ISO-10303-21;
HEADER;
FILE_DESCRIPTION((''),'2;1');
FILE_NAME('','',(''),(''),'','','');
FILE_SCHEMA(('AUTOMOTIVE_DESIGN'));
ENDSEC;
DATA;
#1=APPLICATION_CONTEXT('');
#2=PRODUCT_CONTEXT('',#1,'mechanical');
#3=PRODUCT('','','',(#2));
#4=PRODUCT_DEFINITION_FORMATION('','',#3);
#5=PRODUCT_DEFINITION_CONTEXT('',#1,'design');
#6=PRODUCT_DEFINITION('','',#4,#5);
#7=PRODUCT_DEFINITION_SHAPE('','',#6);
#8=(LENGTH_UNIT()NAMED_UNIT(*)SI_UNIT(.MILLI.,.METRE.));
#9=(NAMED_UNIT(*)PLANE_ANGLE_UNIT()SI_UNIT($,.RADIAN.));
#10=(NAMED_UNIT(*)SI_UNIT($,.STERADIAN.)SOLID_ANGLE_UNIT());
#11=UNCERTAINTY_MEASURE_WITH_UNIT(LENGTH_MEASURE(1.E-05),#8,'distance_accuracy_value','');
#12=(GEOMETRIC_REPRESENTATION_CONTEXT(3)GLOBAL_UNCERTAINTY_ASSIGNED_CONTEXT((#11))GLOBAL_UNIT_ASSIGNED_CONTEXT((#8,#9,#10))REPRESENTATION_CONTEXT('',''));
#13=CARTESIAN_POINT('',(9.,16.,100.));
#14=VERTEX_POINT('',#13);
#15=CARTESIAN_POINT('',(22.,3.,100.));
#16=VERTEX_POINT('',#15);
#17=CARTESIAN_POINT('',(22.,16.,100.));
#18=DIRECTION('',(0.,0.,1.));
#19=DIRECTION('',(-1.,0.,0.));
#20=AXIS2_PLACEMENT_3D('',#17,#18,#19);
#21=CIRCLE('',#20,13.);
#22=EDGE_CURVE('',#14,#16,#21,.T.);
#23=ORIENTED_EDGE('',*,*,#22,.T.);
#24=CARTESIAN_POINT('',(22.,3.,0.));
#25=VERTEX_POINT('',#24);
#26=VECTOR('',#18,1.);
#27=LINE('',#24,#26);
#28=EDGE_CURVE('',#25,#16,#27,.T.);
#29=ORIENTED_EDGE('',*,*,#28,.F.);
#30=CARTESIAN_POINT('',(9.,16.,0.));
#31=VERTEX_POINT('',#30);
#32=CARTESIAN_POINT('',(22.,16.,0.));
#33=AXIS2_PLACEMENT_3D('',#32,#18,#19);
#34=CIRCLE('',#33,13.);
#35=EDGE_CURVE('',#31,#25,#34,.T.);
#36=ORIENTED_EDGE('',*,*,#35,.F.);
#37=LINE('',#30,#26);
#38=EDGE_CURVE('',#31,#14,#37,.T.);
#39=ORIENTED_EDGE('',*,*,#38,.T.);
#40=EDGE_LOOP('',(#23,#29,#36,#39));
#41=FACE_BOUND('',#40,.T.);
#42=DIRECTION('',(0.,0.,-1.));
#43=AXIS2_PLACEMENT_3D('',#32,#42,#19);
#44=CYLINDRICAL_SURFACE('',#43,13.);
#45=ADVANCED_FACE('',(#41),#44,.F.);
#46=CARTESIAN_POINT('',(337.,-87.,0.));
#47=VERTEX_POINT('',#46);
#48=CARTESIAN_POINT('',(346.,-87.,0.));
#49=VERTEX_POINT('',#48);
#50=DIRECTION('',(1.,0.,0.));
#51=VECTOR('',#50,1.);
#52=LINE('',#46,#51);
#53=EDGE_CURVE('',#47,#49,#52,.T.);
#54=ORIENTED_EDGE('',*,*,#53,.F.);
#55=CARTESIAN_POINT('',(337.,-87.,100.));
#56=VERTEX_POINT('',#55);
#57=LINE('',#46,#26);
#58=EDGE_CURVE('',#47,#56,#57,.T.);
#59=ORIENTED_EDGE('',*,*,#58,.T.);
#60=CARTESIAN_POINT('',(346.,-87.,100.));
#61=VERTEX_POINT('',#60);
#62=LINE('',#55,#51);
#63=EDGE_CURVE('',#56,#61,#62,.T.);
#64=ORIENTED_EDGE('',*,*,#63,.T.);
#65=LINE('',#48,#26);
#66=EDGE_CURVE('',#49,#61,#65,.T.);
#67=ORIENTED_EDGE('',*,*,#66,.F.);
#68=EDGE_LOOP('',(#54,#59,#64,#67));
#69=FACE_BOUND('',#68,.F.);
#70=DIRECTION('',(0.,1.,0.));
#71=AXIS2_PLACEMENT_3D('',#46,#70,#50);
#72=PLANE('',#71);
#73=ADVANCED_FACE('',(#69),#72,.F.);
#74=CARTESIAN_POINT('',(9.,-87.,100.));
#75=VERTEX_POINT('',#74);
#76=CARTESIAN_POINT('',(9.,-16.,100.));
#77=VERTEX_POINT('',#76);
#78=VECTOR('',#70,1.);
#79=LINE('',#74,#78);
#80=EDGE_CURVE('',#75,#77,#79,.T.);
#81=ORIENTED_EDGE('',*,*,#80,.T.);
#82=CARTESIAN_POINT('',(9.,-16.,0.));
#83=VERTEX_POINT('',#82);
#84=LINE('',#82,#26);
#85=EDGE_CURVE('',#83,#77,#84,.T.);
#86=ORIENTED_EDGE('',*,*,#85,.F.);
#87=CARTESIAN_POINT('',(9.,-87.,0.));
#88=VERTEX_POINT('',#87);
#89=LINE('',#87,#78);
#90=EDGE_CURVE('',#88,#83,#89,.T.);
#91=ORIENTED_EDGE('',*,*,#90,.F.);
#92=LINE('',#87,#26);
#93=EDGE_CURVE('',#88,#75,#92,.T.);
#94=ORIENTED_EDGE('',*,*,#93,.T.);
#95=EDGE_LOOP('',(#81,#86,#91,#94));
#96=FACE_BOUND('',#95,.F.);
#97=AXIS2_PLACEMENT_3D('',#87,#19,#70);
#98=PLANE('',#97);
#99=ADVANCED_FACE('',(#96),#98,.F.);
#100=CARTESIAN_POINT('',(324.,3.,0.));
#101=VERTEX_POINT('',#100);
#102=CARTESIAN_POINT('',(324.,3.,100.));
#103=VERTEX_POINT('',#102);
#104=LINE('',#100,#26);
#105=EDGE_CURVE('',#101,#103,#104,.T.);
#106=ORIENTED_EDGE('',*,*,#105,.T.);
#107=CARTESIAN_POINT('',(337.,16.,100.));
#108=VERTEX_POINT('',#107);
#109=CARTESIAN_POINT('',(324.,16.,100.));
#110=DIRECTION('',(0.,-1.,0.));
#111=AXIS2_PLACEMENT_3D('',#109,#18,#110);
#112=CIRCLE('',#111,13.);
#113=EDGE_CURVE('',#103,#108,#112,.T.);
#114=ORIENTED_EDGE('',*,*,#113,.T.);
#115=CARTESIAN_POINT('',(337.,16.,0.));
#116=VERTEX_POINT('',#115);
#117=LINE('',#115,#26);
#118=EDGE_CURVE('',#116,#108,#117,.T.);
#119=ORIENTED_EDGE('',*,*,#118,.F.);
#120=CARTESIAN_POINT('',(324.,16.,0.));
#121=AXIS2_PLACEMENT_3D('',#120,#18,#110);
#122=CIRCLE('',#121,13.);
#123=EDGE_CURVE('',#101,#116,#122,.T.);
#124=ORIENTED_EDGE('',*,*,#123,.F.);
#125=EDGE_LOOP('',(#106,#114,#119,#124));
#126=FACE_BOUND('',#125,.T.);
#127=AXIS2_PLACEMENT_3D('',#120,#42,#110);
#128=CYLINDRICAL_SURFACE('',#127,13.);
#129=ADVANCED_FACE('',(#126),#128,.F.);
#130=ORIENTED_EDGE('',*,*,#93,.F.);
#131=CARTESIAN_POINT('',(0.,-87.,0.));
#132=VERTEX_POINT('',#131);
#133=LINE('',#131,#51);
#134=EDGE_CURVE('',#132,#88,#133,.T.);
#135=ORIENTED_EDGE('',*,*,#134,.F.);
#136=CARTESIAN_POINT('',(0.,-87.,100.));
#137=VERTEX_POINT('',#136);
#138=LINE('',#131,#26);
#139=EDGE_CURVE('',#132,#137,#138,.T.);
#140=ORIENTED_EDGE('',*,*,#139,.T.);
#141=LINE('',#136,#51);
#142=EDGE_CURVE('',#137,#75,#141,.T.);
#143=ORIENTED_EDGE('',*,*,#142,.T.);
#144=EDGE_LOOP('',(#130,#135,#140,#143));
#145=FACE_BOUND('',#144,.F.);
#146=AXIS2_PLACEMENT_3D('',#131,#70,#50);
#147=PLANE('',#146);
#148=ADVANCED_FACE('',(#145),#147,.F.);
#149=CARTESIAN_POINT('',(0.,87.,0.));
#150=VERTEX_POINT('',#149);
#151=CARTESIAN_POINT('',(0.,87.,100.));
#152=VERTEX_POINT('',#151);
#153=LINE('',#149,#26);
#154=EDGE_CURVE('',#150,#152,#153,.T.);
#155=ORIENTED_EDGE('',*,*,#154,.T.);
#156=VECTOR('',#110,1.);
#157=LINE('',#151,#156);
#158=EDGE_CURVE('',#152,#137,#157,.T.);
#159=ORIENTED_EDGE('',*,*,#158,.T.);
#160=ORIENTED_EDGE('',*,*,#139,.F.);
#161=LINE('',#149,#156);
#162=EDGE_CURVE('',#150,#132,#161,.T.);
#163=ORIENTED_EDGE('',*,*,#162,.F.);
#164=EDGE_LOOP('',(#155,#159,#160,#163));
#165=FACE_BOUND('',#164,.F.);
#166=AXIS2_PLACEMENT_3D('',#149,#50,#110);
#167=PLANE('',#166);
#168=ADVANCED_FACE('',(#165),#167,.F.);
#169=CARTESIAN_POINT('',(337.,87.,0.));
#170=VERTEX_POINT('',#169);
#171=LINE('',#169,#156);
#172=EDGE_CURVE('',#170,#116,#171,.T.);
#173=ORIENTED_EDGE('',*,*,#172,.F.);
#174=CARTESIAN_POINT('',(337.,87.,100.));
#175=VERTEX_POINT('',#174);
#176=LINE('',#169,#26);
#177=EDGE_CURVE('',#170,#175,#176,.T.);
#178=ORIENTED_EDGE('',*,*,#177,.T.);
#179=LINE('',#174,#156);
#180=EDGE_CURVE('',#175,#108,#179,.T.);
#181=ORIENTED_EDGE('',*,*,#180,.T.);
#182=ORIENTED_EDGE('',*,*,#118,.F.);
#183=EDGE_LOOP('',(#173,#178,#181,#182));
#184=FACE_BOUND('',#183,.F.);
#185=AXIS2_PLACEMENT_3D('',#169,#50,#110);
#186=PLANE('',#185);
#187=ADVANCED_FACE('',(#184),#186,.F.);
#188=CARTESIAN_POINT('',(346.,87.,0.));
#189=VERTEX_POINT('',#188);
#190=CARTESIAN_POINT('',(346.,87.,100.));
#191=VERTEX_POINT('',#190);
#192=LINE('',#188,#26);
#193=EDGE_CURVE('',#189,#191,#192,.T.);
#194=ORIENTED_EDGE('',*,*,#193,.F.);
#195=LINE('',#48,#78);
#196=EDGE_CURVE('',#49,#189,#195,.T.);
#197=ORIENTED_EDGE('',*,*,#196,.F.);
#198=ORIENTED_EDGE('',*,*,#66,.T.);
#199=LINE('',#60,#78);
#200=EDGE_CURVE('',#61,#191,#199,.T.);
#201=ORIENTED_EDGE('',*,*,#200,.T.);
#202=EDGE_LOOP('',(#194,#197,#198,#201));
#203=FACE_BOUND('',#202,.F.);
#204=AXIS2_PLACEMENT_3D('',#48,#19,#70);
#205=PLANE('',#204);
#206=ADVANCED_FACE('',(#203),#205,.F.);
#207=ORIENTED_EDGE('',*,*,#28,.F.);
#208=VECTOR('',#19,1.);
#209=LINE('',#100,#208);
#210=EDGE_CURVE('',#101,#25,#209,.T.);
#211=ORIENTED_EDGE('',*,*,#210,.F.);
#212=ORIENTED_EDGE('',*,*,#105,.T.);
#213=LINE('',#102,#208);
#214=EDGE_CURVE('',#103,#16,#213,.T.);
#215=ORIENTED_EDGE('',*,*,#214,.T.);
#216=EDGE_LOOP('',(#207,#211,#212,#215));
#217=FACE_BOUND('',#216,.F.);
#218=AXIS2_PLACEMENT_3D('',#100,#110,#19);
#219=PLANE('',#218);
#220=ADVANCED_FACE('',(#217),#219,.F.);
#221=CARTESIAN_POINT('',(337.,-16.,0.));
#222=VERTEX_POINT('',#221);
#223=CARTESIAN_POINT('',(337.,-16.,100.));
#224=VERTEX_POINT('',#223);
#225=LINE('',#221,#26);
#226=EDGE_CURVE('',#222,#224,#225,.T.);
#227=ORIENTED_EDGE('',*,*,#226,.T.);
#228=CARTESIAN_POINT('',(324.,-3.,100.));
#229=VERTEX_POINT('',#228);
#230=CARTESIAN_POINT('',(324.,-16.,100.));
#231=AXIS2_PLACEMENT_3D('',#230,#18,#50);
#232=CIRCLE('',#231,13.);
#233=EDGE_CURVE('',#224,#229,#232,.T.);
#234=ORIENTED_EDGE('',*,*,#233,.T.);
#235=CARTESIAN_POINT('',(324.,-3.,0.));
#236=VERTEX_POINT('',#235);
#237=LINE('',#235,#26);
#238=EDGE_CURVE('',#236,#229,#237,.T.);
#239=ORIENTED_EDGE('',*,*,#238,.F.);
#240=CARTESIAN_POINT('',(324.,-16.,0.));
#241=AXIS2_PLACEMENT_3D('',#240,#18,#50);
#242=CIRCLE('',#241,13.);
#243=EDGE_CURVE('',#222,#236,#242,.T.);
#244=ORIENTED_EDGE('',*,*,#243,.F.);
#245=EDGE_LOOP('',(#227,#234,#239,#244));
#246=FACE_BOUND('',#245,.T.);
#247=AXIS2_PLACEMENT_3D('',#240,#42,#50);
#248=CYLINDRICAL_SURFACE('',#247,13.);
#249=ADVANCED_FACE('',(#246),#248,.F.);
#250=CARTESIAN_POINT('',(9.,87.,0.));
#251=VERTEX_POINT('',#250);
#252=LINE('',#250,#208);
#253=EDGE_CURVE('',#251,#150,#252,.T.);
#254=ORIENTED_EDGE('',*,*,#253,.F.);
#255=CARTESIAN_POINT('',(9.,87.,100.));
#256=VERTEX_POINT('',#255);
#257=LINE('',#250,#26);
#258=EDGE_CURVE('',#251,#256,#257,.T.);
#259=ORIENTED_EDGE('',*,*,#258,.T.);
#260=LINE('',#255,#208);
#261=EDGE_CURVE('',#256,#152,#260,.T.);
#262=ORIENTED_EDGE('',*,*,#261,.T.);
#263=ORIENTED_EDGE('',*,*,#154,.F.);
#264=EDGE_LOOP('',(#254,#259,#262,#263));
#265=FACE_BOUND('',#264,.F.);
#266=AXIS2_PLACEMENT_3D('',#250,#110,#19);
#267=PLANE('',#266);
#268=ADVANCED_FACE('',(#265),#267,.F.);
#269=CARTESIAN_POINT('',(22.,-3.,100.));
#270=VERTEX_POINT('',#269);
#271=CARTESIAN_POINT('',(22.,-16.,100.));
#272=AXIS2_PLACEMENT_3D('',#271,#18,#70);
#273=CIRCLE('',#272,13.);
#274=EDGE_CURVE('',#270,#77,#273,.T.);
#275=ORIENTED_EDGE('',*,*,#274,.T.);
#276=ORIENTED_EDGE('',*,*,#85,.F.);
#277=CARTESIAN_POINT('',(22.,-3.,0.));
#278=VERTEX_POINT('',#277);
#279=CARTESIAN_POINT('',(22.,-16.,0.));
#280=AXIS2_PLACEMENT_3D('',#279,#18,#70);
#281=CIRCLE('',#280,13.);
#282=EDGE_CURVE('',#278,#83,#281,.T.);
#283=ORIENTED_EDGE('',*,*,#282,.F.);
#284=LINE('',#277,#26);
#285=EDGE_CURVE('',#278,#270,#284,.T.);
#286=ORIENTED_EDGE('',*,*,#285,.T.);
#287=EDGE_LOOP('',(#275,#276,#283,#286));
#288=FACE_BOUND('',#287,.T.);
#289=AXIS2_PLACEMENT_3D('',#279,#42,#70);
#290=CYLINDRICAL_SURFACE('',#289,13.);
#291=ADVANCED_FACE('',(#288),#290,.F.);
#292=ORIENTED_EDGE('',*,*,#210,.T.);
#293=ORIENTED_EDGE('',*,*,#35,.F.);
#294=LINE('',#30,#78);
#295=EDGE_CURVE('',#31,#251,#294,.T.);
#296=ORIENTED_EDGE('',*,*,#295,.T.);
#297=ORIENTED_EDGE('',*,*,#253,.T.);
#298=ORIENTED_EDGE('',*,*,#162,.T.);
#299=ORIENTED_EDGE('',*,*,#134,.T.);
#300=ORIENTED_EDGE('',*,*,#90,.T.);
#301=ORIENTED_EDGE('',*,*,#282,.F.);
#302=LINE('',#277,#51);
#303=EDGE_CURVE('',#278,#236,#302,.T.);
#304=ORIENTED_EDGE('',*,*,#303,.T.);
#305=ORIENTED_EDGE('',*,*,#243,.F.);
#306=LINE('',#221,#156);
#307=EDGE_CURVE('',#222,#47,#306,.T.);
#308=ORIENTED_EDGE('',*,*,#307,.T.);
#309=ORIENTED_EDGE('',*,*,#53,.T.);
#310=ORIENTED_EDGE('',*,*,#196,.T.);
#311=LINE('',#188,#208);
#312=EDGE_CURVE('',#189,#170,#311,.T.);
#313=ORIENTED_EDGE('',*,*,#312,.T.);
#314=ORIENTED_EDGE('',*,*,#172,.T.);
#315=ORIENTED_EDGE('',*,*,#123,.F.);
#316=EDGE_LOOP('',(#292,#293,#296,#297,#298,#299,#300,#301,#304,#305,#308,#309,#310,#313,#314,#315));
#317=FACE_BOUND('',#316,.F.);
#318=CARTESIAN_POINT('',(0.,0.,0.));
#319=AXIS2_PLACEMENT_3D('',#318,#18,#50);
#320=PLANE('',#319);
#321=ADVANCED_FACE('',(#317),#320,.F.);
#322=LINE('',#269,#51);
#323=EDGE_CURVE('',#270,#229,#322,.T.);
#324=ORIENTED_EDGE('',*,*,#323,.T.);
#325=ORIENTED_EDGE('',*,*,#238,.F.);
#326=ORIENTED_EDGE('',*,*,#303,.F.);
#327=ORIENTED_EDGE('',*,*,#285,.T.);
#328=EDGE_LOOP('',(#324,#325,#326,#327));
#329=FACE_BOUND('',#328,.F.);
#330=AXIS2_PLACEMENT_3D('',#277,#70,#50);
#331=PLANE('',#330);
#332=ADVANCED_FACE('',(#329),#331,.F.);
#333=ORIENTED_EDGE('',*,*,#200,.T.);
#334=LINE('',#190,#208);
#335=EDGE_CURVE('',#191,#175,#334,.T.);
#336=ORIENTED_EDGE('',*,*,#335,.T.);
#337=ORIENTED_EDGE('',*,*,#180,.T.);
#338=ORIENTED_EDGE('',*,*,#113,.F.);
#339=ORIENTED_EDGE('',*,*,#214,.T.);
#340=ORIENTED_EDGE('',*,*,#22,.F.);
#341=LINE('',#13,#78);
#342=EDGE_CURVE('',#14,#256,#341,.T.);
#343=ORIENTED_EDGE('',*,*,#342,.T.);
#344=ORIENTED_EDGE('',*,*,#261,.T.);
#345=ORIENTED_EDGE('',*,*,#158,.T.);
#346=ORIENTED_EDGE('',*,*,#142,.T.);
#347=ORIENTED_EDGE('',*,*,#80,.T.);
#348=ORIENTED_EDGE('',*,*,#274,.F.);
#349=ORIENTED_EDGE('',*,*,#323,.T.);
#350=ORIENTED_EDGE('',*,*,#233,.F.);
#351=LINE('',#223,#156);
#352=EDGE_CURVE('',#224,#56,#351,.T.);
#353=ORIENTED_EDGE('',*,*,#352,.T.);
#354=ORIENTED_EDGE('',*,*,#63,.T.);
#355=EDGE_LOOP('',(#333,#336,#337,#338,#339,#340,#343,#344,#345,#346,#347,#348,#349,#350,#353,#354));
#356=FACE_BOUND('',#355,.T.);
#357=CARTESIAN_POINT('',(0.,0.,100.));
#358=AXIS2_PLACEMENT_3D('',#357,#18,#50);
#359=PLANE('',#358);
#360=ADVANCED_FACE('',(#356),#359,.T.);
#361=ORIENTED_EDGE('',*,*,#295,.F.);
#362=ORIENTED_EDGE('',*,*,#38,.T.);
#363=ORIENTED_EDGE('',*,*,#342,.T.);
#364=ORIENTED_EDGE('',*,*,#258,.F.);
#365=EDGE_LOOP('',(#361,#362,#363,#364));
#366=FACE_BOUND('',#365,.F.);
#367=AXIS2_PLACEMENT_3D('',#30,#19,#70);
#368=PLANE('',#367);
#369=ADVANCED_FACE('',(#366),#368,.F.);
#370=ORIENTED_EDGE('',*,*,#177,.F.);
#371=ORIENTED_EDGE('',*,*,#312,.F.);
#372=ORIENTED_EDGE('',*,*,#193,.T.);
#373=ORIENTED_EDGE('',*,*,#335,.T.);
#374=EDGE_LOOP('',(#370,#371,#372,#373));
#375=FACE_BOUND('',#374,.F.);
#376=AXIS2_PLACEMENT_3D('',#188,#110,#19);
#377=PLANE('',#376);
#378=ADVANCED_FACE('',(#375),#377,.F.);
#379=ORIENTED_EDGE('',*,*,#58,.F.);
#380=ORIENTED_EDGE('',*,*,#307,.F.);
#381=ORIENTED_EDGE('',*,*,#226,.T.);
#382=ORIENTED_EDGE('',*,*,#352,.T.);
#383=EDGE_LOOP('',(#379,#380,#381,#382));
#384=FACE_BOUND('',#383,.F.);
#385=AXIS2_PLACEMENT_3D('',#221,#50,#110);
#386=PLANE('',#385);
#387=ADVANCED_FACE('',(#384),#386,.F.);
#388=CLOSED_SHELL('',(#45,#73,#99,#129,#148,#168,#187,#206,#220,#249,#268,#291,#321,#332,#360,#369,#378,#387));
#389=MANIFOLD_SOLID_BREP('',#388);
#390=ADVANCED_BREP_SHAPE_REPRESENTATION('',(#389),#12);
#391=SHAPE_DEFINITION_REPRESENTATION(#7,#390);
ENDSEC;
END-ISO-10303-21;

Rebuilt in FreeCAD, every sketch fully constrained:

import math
import FreeCAD as App
import Part
import Sketcher
from FreeCAD import Vector

doc = App.newDocument("Part")
body = doc.addObject("PartDesign::Body", "Body")

sketch1 = body.newObject("Sketcher::SketchObject", "Sketch")
sketch1.AttachmentSupport = (doc.getObject("XY_Plane"), [""])
sketch1.MapMode = "FlatFace"
sketch1.addGeometry([
    Part.LineSegment(Vector(9, 87, 0), Vector(0, 87, 0)),
    Part.LineSegment(Vector(0, 87, 0), Vector(0, -87, 0)),
    Part.LineSegment(Vector(0, -87, 0), Vector(9, -87, 0)),
    Part.LineSegment(Vector(9, -87, 0), Vector(9, -16, 0)),
    Part.ArcOfCircle(Part.Circle(Vector(22, -16, 0), Vector(0, 0, 1), 13), math.radians(90), math.radians(180)),
    Part.LineSegment(Vector(22, -3, 0), Vector(324, -3, 0)),
    Part.ArcOfCircle(Part.Circle(Vector(324, -16, 0), Vector(0, 0, 1), 13), math.radians(0), math.radians(90)),
    Part.LineSegment(Vector(337, -16, 0), Vector(337, -87, 0)),
    Part.LineSegment(Vector(337, -87, 0), Vector(346, -87, 0)),
    Part.LineSegment(Vector(346, -87, 0), Vector(346, 87, 0)),
    Part.LineSegment(Vector(346, 87, 0), Vector(337, 87, 0)),
    Part.LineSegment(Vector(337, 87, 0), Vector(337, 16, 0)),
    Part.ArcOfCircle(Part.Circle(Vector(324, 16, 0), Vector(0, 0, 1), 13), math.radians(-90), math.radians(0)),
    Part.LineSegment(Vector(324, 3, 0), Vector(22, 3, 0)),
    Part.ArcOfCircle(Part.Circle(Vector(22, 16, 0), Vector(0, 0, 1), 13), math.radians(180), math.radians(270)),
    Part.LineSegment(Vector(9, 16, 0), Vector(9, 87, 0)),
], False)
sketch1.addConstraint([
    Sketcher.Constraint("Coincident", 0, 2, 1, 1),
    Sketcher.Constraint("Coincident", 1, 2, 2, 1),
    Sketcher.Constraint("Coincident", 2, 2, 3, 1),
    Sketcher.Constraint("Tangent", 3, 2, 4, 2),
    Sketcher.Constraint("Tangent", 4, 1, 5, 1),
    Sketcher.Constraint("Tangent", 5, 2, 6, 2),
    Sketcher.Constraint("Tangent", 6, 1, 7, 1),
    Sketcher.Constraint("Coincident", 7, 2, 8, 1),
    Sketcher.Constraint("Coincident", 8, 2, 9, 1),
    Sketcher.Constraint("Coincident", 9, 2, 10, 1),
    Sketcher.Constraint("Coincident", 10, 2, 11, 1),
    Sketcher.Constraint("Tangent", 11, 2, 12, 2),
    Sketcher.Constraint("Tangent", 12, 1, 13, 1),
    Sketcher.Constraint("Tangent", 13, 2, 14, 2),
    Sketcher.Constraint("Tangent", 14, 1, 15, 1),
    Sketcher.Constraint("Coincident", 15, 2, 0, 1),
    Sketcher.Constraint("Horizontal", 0),
    Sketcher.Constraint("Vertical", 1),
    Sketcher.Constraint("Horizontal", 2),
    Sketcher.Constraint("Vertical", 3),
    Sketcher.Constraint("Horizontal", 5),
    Sketcher.Constraint("Vertical", 7),
    Sketcher.Constraint("Horizontal", 8),
    Sketcher.Constraint("Vertical", 9),
    Sketcher.Constraint("Horizontal", 10),
    Sketcher.Constraint("Vertical", 11),
    Sketcher.Constraint("Horizontal", 13),
    Sketcher.Constraint("Vertical", 15),
    Sketcher.Constraint("Equal", 4, 6),
    Sketcher.Constraint("Equal", 6, 12),
    Sketcher.Constraint("Equal", 12, 14),
    Sketcher.Constraint("Symmetric", 0, 2, 1, 2, -1, 1),
    Sketcher.Constraint("Symmetric", 6, 3, 12, 3, -1),
    Sketcher.Constraint("Horizontal", 2, 2, 7, 2),
    Sketcher.Constraint("Horizontal", 0, 2, 9, 2),
    Sketcher.Constraint("Vertical", 4, 3, 14, 3),
    Sketcher.Constraint("Equal", 2, 8),
    Sketcher.Constraint("Radius", 4, 13.0),
    Sketcher.Constraint("DistanceX", 0, 2, 0, 1, 9.0),
    Sketcher.Constraint("DistanceX", 5, 1, 5, 2, 302.0),
    Sketcher.Constraint("DistanceY", 1, 2, 1, 1, 174.0),
    Sketcher.Constraint("DistanceY", 3, 1, 3, 2, 71.0),
])
pad1 = body.newObject("PartDesign::Pad", "Pad")
pad1.Profile = sketch1
pad1.Length = 100

doc.recompute()
